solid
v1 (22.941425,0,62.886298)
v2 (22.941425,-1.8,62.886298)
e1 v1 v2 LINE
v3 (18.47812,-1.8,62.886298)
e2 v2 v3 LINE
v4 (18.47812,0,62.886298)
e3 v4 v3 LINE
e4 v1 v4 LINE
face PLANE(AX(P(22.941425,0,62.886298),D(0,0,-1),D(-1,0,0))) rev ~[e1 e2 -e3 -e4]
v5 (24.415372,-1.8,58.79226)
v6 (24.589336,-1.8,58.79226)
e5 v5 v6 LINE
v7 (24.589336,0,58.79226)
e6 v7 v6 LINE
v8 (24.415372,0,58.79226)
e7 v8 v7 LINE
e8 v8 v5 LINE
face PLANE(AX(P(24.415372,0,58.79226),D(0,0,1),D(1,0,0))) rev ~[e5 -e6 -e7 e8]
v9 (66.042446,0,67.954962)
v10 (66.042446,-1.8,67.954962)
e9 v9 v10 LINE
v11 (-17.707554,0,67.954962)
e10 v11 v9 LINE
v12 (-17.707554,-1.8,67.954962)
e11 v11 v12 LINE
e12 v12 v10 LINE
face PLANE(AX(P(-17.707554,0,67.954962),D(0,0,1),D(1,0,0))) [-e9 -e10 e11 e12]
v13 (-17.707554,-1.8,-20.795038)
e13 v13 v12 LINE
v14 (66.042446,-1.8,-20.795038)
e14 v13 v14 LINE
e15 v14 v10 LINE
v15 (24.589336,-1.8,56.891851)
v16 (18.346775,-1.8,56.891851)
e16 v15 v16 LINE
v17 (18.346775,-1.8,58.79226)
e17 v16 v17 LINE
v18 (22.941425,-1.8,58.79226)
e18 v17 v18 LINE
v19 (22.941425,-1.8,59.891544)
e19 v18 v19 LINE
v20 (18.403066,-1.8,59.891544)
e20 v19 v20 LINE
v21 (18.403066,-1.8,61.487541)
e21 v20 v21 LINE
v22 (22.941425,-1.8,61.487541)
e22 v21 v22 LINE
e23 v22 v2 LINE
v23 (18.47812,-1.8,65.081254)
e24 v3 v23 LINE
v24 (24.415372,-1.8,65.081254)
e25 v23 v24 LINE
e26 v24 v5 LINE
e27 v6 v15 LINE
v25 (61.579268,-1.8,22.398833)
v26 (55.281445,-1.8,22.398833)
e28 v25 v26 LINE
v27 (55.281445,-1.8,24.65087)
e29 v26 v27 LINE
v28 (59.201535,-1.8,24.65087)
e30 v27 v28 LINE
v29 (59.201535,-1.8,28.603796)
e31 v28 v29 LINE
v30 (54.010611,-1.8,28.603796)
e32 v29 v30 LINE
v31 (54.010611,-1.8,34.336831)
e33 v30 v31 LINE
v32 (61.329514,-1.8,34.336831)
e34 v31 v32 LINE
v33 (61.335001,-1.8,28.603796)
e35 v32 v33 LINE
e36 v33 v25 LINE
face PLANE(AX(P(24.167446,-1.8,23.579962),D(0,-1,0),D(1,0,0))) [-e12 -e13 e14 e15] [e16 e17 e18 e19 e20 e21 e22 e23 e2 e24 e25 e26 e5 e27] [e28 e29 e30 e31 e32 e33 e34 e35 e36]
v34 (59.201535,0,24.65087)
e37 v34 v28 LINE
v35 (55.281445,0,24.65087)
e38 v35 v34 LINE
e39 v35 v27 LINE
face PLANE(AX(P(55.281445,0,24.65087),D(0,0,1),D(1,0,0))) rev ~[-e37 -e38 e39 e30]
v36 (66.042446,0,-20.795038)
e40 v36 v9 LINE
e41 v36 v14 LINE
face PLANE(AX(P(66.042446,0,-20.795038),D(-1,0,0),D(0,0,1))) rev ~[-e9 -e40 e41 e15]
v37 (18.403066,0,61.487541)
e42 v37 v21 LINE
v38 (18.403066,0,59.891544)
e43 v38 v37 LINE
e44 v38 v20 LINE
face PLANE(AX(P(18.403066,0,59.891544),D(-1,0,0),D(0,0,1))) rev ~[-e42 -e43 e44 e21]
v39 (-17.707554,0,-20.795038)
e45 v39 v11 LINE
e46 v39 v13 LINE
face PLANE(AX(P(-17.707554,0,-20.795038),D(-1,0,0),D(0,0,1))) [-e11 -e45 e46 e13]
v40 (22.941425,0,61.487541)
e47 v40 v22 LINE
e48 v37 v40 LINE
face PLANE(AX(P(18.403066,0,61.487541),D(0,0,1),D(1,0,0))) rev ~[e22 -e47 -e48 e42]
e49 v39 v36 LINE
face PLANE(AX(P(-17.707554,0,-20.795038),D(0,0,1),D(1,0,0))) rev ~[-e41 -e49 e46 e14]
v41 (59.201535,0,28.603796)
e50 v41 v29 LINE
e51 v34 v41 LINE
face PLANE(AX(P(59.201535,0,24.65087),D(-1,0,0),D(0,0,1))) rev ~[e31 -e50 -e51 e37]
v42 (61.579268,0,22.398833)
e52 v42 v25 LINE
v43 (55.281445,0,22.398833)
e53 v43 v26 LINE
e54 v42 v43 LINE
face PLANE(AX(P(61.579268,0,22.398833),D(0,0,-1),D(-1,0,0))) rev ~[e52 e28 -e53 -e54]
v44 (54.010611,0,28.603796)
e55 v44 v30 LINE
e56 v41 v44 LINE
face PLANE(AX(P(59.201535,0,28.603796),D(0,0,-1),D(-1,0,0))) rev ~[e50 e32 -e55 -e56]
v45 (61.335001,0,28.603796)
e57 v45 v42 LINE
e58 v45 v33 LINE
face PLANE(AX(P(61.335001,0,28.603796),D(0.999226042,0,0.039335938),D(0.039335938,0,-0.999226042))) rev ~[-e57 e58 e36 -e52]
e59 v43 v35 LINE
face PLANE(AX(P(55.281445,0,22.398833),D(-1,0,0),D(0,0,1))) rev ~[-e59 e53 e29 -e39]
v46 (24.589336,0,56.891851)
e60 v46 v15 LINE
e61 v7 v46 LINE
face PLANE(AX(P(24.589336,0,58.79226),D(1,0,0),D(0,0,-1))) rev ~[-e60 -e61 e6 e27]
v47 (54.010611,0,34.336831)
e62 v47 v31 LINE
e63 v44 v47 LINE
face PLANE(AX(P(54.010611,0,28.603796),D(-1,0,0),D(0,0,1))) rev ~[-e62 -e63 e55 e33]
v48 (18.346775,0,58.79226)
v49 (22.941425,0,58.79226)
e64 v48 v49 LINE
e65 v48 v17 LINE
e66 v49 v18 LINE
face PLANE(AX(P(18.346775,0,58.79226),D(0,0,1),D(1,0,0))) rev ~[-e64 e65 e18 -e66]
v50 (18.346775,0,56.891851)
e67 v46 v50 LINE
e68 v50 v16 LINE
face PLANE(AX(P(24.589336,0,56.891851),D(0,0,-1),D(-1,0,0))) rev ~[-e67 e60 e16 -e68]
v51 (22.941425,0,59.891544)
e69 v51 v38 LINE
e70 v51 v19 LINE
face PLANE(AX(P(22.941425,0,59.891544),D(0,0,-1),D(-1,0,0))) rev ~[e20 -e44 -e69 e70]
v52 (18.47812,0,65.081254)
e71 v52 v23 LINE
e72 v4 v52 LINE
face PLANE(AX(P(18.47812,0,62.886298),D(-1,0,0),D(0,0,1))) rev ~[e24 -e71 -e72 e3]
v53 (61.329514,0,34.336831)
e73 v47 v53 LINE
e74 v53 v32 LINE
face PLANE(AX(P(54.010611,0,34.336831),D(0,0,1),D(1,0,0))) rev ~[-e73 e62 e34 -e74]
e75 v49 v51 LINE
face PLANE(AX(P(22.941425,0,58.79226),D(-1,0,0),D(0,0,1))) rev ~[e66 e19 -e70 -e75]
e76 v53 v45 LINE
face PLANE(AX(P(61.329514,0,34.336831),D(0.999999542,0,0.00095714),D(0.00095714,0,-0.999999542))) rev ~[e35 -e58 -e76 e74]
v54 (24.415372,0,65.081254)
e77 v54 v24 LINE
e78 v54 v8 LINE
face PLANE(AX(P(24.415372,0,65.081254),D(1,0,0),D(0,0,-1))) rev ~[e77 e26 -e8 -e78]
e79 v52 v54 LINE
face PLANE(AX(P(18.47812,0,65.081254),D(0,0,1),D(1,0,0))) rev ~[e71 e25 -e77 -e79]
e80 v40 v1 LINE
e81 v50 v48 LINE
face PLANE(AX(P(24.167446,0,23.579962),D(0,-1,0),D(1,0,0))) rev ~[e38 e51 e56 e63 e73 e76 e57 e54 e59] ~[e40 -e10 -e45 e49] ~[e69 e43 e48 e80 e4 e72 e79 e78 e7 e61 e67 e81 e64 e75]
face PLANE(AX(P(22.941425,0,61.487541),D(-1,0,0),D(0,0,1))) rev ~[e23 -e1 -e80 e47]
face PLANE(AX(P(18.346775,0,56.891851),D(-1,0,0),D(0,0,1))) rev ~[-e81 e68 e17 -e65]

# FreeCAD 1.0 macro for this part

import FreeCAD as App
import Part
import Sketcher

V = App.Vector
Q = App.Units.Quantity


def add_polygon(sketch, points):
    """Adds a closed chain of lines whose ends are joined by coincident constraints."""
    first, n = sketch.GeometryCount, len(points)
    for a, b in zip(points, points[1:] + points[:1]):
        sketch.addGeometry(Part.LineSegment(App.Vector(*a, 0), App.Vector(*b, 0)), False)
    for i in range(n):
        sketch.addConstraint(Sketcher.Constraint("Coincident", first + i, 2, first + (i + 1) % n, 1))

doc = App.newDocument("Part")
body = doc.addObject("PartDesign::Body", "Body")

sketch1 = body.newObject("Sketcher::SketchObject", "Sketch")
sketch1.AttachmentSupport = (doc.getObject("XZ_Plane"), [""])
sketch1.MapMode = "FlatFace"
add_polygon(sketch1, [(-17.71, 67.95), (-17.71, -20.8), (66.04, -20.8), (66.04, 67.95)])
add_polygon(sketch1, [(59.2, 28.6), (54.01, 28.6), (54.01, 34.34), (61.33, 34.34), (61.34, 28.6), (61.58, 22.4), (55.28, 22.4), (55.28, 24.65), (59.2, 24.65)])
add_polygon(sketch1, [(22.94, 62.89), (18.48, 62.89), (18.48, 65.08), (24.42, 65.08), (24.42, 58.79), (24.59, 58.79), (24.59, 56.89), (18.35, 56.89), (18.35, 58.79), (22.94, 58.79), (22.94, 59.89), (18.4, 59.89), (18.4, 61.49), (22.94, 61.49)])
sketch1.addConstraint([
    Sketcher.Constraint("Vertical", 0),
    Sketcher.Constraint("Horizontal", 1),
    Sketcher.Constraint("Vertical", 2),
    Sketcher.Constraint("Horizontal", 3),
    Sketcher.Constraint("Horizontal", 4),
    Sketcher.Constraint("Vertical", 5),
    Sketcher.Constraint("Horizontal", 6),
    Sketcher.Constraint("Horizontal", 9),
    Sketcher.Constraint("Vertical", 10),
    Sketcher.Constraint("Horizontal", 11),
    Sketcher.Constraint("Vertical", 12),
    Sketcher.Constraint("Horizontal", 13),
    Sketcher.Constraint("Vertical", 14),
    Sketcher.Constraint("Horizontal", 15),
    Sketcher.Constraint("Vertical", 16),
    Sketcher.Constraint("Horizontal", 17),
    Sketcher.Constraint("Vertical", 18),
    Sketcher.Constraint("Horizontal", 19),
    Sketcher.Constraint("Vertical", 20),
    Sketcher.Constraint("Horizontal", 21),
    Sketcher.Constraint("Vertical", 22),
    Sketcher.Constraint("Horizontal", 23),
    Sketcher.Constraint("Vertical", 24),
    Sketcher.Constraint("Horizontal", 25),
    Sketcher.Constraint("Vertical", 26),
    Sketcher.Constraint("Horizontal", 4, 2, 7, 2),
    Sketcher.Constraint("Horizontal", 17, 2, 20, 2),
    Sketcher.Constraint("Vertical", 22, 2, 25, 2),
    Sketcher.Constraint("DistanceX", 1, 1, 1, 2, Q("83.75 mm")),
    Sketcher.Constraint("DistanceY", 0, 2, 0, 1, Q("88.75 mm")),
    Sketcher.Constraint("DistanceX", -1, 1, 7, 2, Q("61.335001 mm")),
    Sketcher.Constraint("DistanceY", 8, 2, 6, 2, Q("11.937998 mm")),
    Sketcher.Constraint("DistanceX", 11, 1, 11, 2, Q("3.920089 mm")),
    Sketcher.Constraint("DistanceX", 19, 2, 19, 1, Q("6.24256 mm")),
    Sketcher.Constraint("DistanceX", 21, 1, 21, 2, Q("4.59465 mm")),
    Sketcher.Constraint("DistanceX", 23, 2, 23, 1, Q("4.538359 mm")),
    Sketcher.Constraint("DistanceY", 18, 2, 18, 1, Q("1.900408 mm")),
    Sketcher.Constraint("DistanceY", 4, 2, 13, 2, Q("34.282502 mm")),
    Sketcher.Constraint("Distance", 7, Q("5.733038 mm")),
    Sketcher.Constraint("Distance", 8, Q("6.209769 mm")),
    Sketcher.Constraint("DistanceX", 4, 2, 4, 1, Q("5.190924 mm")),
    Sketcher.Constraint("DistanceX", 6, 1, 6, 2, Q("7.318903 mm")),
    Sketcher.Constraint("DistanceX", 9, 2, 9, 1, Q("6.297823 mm")),
    Sketcher.Constraint("DistanceX", 13, 2, 13, 1, Q("4.463306 mm")),
    Sketcher.Constraint("DistanceX", 15, 1, 15, 2, Q("5.937252 mm")),
    Sketcher.Constraint("DistanceY", 10, 1, 10, 2, Q("2.252037 mm")),
    Sketcher.Constraint("DistanceY", 14, 1, 14, 2, Q("2.194956 mm")),
    Sketcher.Constraint("DistanceY", 16, 2, 16, 1, Q("6.288994 mm")),
    Sketcher.Constraint("DistanceY", 22, 1, 22, 2, Q("1.099285 mm")),
    Sketcher.Constraint("DistanceY", 24, 1, 24, 2, Q("1.595996 mm")),
    Sketcher.Constraint("DistanceY", -1, 1, 5, 2, Q("34.336831 mm")),
    Sketcher.Constraint("DistanceX", -1, 1, 13, 2, Q("18.47812 mm")),
    Sketcher.Constraint("DistanceY", 5, 2, 2, 2, Q("33.618131 mm")),
    Sketcher.Constraint("DistanceX", 6, 2, 2, 2, Q("4.712932 mm")),
])
pad1 = body.newObject("PartDesign::Pad", "Pad")
pad1.Profile = sketch1
pad1.Length = 1.8

doc.recompute()
